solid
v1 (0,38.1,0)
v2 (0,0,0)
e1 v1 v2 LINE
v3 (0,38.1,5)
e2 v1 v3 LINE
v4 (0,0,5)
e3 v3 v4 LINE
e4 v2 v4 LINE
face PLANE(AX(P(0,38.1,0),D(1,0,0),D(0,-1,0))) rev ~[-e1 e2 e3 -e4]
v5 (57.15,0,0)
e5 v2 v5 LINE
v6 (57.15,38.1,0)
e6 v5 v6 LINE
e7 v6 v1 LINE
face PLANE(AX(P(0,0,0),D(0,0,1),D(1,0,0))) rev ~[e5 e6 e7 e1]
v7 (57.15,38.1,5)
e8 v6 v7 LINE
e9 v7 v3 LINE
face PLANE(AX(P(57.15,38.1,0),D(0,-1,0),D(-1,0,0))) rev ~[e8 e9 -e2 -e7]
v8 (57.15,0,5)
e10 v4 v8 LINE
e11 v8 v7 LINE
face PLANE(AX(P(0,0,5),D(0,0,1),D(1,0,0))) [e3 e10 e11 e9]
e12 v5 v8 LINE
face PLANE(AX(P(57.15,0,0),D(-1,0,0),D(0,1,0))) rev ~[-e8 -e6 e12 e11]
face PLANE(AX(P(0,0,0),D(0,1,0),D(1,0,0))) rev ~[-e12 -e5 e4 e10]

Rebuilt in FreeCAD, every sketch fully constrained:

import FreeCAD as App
import Part
import Sketcher
from FreeCAD import Vector
Q = App.Units.Quantity

doc = App.newDocument("Part")
body = doc.addObject("PartDesign::Body", "Body")

sketch1 = body.newObject("Sketcher::SketchObject", "Sketch")
sketch1.AttachmentSupport = (doc.getObject("XY_Plane"), [""])
sketch1.MapMode = "FlatFace"
sketch1.addGeometry([
    Part.LineSegment(Vector(0, 38, 0), Vector(0, 0, 0)),
    Part.LineSegment(Vector(0, 0, 0), Vector(57, 0, 0)),
    Part.LineSegment(Vector(57, 0, 0), Vector(57, 38, 0)),
    Part.LineSegment(Vector(57, 38, 0), Vector(0, 38, 0)),
], False)
sketch1.addConstraint([
    Sketcher.Constraint("Coincident", 0, 2, 1, 1),
    Sketcher.Constraint("Coincident", 1, 2, 2, 1),
    Sketcher.Constraint("Coincident", 2, 2, 3, 1),
    Sketcher.Constraint("Coincident", 3, 2, 0, 1),
    Sketcher.Constraint("Vertical", 0),
    Sketcher.Constraint("Horizontal", 1),
    Sketcher.Constraint("Vertical", 2),
    Sketcher.Constraint("Horizontal", 3),
    Sketcher.Constraint("Coincident", 0, 2, -1, 1),
    Sketcher.Constraint("DistanceY", 0, 2, 0, 1, Q("1.5 in")),
    Sketcher.Constraint("DistanceX", 1, 1, 1, 2, Q("2.25 in")),
])
pad1 = body.newObject("PartDesign::Pad", "Pad")
pad1.Profile = sketch1
pad1.Length = 5

doc.recompute()
